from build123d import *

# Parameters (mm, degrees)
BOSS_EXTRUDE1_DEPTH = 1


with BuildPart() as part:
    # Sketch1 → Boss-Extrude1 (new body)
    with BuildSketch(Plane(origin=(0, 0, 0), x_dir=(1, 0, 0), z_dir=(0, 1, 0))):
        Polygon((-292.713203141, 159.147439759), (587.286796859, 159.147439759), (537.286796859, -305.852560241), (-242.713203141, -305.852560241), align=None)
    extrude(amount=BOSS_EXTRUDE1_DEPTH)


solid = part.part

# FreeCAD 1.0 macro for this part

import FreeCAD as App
import Part
import Sketcher

V = App.Vector
Q = App.Units.Quantity


def add_polygon(sketch, points):
    """Adds a closed chain of lines whose ends are joined by coincident constraints."""
    first, n = sketch.GeometryCount, len(points)
    for a, b in zip(points, points[1:] + points[:1]):
        sketch.addGeometry(Part.LineSegment(App.Vector(*a, 0), App.Vector(*b, 0)), False)
    for i in range(n):
        sketch.addConstraint(Sketcher.Constraint("Coincident", first + i, 2, first + (i + 1) % n, 1))

doc = App.newDocument("Part")
body = doc.addObject("PartDesign::Body", "Body")

# Sketch on XZ plane
sketch1 = body.newObject("Sketcher::SketchObject", "Sketch")
sketch1.AttachmentSupport = (doc.getObject("XZ_Plane"), [""])
sketch1.MapMode = "FlatFace"
add_polygon(sketch1, [(587, -159), (-293, -159), (-243, 306), (537, 306)])  # lines 0-3
sketch1.addConstraint(Sketcher.Constraint("Horizontal", 0))
sketch1.addConstraint(Sketcher.Constraint("Horizontal", 2))
sketch1.addConstraint(Sketcher.Constraint("Equal", 1, 3))
sketch1.addConstraint(Sketcher.Constraint("DistanceX", 0, 2, 0, 1, Q("880 mm")))
sketch1.addConstraint(Sketcher.Constraint("DistanceX", 2, 1, 2, 2, Q("780 mm")))
sketch1.addConstraint(Sketcher.Constraint("DistanceY", 0, 2, 1, 2, Q("465 mm")))
sketch1.addConstraint(Sketcher.Constraint("DistanceY", 0, 2, -1, 1, Q("159.14744 mm")))
sketch1.addConstraint(Sketcher.Constraint("DistanceX", 0, 2, -1, 1, Q("292.713203 mm")))
pad1 = body.newObject("PartDesign::Pad", "Pad")
pad1.Profile = sketch1
pad1.Length = 1
pad1.Reversed = True

doc.recompute()
